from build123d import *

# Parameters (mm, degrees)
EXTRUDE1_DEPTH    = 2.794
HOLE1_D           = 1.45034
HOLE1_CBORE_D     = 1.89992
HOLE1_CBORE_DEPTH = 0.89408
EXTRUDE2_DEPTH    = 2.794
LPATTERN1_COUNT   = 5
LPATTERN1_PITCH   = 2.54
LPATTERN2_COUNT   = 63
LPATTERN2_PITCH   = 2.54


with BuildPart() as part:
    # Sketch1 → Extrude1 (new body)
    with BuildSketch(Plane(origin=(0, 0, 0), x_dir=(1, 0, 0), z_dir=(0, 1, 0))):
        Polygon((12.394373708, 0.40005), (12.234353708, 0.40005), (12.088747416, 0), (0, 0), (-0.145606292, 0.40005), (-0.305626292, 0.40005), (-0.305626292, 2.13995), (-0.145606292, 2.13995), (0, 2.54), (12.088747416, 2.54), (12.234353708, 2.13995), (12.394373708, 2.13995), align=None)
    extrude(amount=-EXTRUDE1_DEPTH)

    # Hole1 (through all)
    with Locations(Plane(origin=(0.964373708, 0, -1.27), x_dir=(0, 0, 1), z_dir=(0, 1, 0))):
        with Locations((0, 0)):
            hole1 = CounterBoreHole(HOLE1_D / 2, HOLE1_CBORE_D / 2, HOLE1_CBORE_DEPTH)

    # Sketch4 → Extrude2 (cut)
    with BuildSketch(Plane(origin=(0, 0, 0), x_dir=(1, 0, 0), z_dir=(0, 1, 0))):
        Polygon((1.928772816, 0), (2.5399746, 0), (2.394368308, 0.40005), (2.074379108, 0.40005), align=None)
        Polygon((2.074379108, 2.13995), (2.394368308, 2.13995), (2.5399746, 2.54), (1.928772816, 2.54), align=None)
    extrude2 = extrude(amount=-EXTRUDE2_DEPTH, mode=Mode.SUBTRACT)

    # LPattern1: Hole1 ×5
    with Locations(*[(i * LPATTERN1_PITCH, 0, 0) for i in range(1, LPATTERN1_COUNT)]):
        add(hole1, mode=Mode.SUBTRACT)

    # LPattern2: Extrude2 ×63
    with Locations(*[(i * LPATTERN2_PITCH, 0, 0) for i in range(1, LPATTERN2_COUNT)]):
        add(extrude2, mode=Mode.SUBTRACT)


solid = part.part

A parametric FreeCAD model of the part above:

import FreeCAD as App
import Part
import Sketcher

V = App.Vector
Q = App.Units.Quantity

doc = App.newDocument("Part")
body = doc.addObject("PartDesign::Body", "Body")

sketch1 = body.newObject("Sketcher::SketchObject", "Sketch")
sketch1.AttachmentSupport = (doc.getObject("XZ_Plane"), [""])
sketch1.MapMode = "FlatFace"
sketch1.addGeometry([
    Part.LineSegment(V(12.23, -0.4, 0), V(12.39, -0.4, 0)),
    Part.LineSegment(V(12.39, -0.4, 0), V(12.39, -2.14, 0)),
    Part.LineSegment(V(12.39, -2.14, 0), V(12.23, -2.14, 0)),
    Part.LineSegment(V(12.23, -2.14, 0), V(12.09, -2.54, 0)),
    Part.LineSegment(V(12.09, -2.54, 0), V(0, -2.54, 0)),
    Part.LineSegment(V(0, -2.54, 0), V(-0.15, -2.14, 0)),
    Part.LineSegment(V(-0.15, -2.14, 0), V(-0.31, -2.14, 0)),
    Part.LineSegment(V(-0.31, -2.14, 0), V(-0.31, -0.4, 0)),
    Part.LineSegment(V(-0.31, -0.4, 0), V(-0.15, -0.4, 0)),
    Part.LineSegment(V(-0.15, -0.4, 0), V(0, 0, 0)),
    Part.LineSegment(V(0, 0, 0), V(12.09, 0, 0)),
    Part.LineSegment(V(12.09, 0, 0), V(12.23, -0.4, 0)),
], False)
sketch1.addConstraint([
    Sketcher.Constraint("Coincident", 0, 2, 1, 1),
    Sketcher.Constraint("Coincident", 1, 2, 2, 1),
    Sketcher.Constraint("Coincident", 2, 2, 3, 1),
    Sketcher.Constraint("Coincident", 3, 2, 4, 1),
    Sketcher.Constraint("Coincident", 4, 2, 5, 1),
    Sketcher.Constraint("Coincident", 5, 2, 6, 1),
    Sketcher.Constraint("Coincident", 6, 2, 7, 1),
    Sketcher.Constraint("Coincident", 7, 2, 8, 1),
    Sketcher.Constraint("Coincident", 8, 2, 9, 1),
    Sketcher.Constraint("Coincident", 9, 2, 10, 1),
    Sketcher.Constraint("Coincident", 10, 2, 11, 1),
    Sketcher.Constraint("Coincident", 11, 2, 0, 1),
    Sketcher.Constraint("Horizontal", 0),
    Sketcher.Constraint("Vertical", 1),
    Sketcher.Constraint("Horizontal", 2),
    Sketcher.Constraint("Horizontal", 4),
    Sketcher.Constraint("Horizontal", 6),
    Sketcher.Constraint("Vertical", 7),
    Sketcher.Constraint("Horizontal", 8),
    Sketcher.Constraint("Horizontal", 10),
    Sketcher.Constraint("Coincident", 9, 2, -1, 1),
    Sketcher.Constraint("PointOnObject", 4, 2, -2),
    Sketcher.Constraint("Parallel", 3, 9),
    Sketcher.Constraint("Parallel", 5, 11),
    Sketcher.Constraint("Horizontal", 2, 2, 5, 2),
    Sketcher.Constraint("Horizontal", 0, 2, 7, 2),
    Sketcher.Constraint("Vertical", 5, 2, 8, 2),
    Sketcher.Constraint("Vertical", 3, 2, 10, 2),
    Sketcher.Constraint("Vertical", 2, 2, 11, 2),
    Sketcher.Constraint("Equal", 2, 6),
    Sketcher.Constraint("Angle", 3, Q("-110 deg")),
    Sketcher.Constraint("DistanceY", 3, 2, -1, 1, Q("0.1 in")),
    Sketcher.Constraint("DistanceX", 6, 2, 1, 2, Q("0.5 in")),
    Sketcher.Constraint("DistanceX", 0, 1, 0, 2, Q("0.0063 in")),
    Sketcher.Constraint("DistanceY", 1, 2, 1, 1, Q("0.0685 in")),
])
pad1 = body.newObject("PartDesign::Pad", "Pad")
pad1.Profile = sketch1
pad1.Length = Q("0.11 in")

sketch2 = body.newObject("Sketcher::SketchObject", "Sketch001")
sketch2.AttachmentSupport = (doc.getObject("XZ_Plane"), [""])
sketch2.MapMode = "FlatFace"
sketch2.addGeometry(Part.Circle(V(1, -1.3, 0), V(0, 0, 1), 0.7), False)
sketch2.addConstraint([
    Sketcher.Constraint("Diameter", 0, Q("0.0571 in")),
    Sketcher.Constraint("DistanceY", 0, 3, -1, 1, Q("0.05 in")),
    Sketcher.Constraint("DistanceX", -1, 1, 0, 3, 0.964374),
])
doc.recompute()
hole = body.newObject("PartDesign::Hole", "Hole")
hole.Profile = sketch2
hole.ThreadType = "None"
hole.Diameter = Q("0.0571 in")
hole.DepthType = "ThroughAll"
hole.HoleCutType = "Counterbore"
hole.HoleCutDiameter = Q("0.0748 in")
hole.HoleCutDepth = Q("0.0352 in")
hole.Reversed = True

sketch3 = body.newObject("Sketcher::SketchObject", "Sketch002")
sketch3.AttachmentSupport = (doc.getObject("XZ_Plane"), [""])
sketch3.MapMode = "FlatFace"
sketch3.addGeometry([
    Part.LineSegment(V(1.93, 0, 0), V(2.54, 0, 0)),
    Part.LineSegment(V(2.54, 0, 0), V(2.39, -0.4, 0)),
    Part.LineSegment(V(2.39, -0.4, 0), V(2.07, -0.4, 0)),
    Part.LineSegment(V(2.07, -0.4, 0), V(1.93, 0, 0)),
    Part.LineSegment(V(2.07, -2.14, 0), V(2.39, -2.14, 0)),
    Part.LineSegment(V(2.39, -2.14, 0), V(2.54, -2.54, 0)),
    Part.LineSegment(V(2.54, -2.54, 0), V(1.93, -2.54, 0)),
    Part.LineSegment(V(1.93, -2.54, 0), V(2.07, -2.14, 0)),
], False)
sketch3.addConstraint([
    Sketcher.Constraint("Coincident", 0, 2, 1, 1),
    Sketcher.Constraint("Coincident", 1, 2, 2, 1),
    Sketcher.Constraint("Coincident", 2, 2, 3, 1),
    Sketcher.Constraint("Coincident", 3, 2, 0, 1),
    Sketcher.Constraint("Coincident", 4, 2, 5, 1),
    Sketcher.Constraint("Coincident", 5, 2, 6, 1),
    Sketcher.Constraint("Coincident", 6, 2, 7, 1),
    Sketcher.Constraint("Coincident", 7, 2, 4, 1),
    Sketcher.Constraint("Horizontal", 0),
    Sketcher.Constraint("Horizontal", 2),
    Sketcher.Constraint("Horizontal", 4),
    Sketcher.Constraint("Horizontal", 6),
    Sketcher.Constraint("PointOnObject", 0, 2, -1),
    Sketcher.Constraint("Parallel", 3, 5),
    Sketcher.Constraint("Parallel", 1, 7),
    Sketcher.Constraint("Vertical", 1, 2, 4, 2),
    Sketcher.Constraint("Vertical", 0, 2, 5, 2),
    Sketcher.Constraint("Vertical", 3, 2, 6, 2),
    Sketcher.Constraint("Vertical", 2, 2, 7, 2),
    Sketcher.Constraint("Angle", 1, Q("-110 deg")),
    Sketcher.Constraint("DistanceY", 5, 2, -1, 1, Q("0.1 in")),
    Sketcher.Constraint("DistanceX", 0, 1, 0, 2, 0.611202),
    Sketcher.Constraint("DistanceY", 4, 2, 1, 2, Q("0.0685 in")),
    Sketcher.Constraint("DistanceX", -1, 1, 1, 2, 2.394368),
])
pocket1 = body.newObject("PartDesign::Pocket", "Pocket")
pocket1.Profile = sketch3
pocket1.Length = Q("0.11 in")
pocket1.Reversed = True
doc.recompute()

linearpattern = body.newObject("PartDesign::LinearPattern", "LinearPattern")
linearpattern.Originals = [hole]
linearpattern.Direction = (doc.getObject("X_Axis"), [""])
linearpattern.Mode = "offset"
linearpattern.Offset = Q("0.1 in")
linearpattern.Occurrences = 5
body.Tip = linearpattern
doc.recompute()

linearpattern2 = body.newObject("PartDesign::LinearPattern", "LinearPattern001")
linearpattern2.Originals = [pocket1]
linearpattern2.Direction = (doc.getObject("X_Axis"), [""])
linearpattern2.Mode = "offset"
linearpattern2.Offset = Q("0.1 in")
linearpattern2.Occurrences = 63
body.Tip = linearpattern2

doc.recompute()
